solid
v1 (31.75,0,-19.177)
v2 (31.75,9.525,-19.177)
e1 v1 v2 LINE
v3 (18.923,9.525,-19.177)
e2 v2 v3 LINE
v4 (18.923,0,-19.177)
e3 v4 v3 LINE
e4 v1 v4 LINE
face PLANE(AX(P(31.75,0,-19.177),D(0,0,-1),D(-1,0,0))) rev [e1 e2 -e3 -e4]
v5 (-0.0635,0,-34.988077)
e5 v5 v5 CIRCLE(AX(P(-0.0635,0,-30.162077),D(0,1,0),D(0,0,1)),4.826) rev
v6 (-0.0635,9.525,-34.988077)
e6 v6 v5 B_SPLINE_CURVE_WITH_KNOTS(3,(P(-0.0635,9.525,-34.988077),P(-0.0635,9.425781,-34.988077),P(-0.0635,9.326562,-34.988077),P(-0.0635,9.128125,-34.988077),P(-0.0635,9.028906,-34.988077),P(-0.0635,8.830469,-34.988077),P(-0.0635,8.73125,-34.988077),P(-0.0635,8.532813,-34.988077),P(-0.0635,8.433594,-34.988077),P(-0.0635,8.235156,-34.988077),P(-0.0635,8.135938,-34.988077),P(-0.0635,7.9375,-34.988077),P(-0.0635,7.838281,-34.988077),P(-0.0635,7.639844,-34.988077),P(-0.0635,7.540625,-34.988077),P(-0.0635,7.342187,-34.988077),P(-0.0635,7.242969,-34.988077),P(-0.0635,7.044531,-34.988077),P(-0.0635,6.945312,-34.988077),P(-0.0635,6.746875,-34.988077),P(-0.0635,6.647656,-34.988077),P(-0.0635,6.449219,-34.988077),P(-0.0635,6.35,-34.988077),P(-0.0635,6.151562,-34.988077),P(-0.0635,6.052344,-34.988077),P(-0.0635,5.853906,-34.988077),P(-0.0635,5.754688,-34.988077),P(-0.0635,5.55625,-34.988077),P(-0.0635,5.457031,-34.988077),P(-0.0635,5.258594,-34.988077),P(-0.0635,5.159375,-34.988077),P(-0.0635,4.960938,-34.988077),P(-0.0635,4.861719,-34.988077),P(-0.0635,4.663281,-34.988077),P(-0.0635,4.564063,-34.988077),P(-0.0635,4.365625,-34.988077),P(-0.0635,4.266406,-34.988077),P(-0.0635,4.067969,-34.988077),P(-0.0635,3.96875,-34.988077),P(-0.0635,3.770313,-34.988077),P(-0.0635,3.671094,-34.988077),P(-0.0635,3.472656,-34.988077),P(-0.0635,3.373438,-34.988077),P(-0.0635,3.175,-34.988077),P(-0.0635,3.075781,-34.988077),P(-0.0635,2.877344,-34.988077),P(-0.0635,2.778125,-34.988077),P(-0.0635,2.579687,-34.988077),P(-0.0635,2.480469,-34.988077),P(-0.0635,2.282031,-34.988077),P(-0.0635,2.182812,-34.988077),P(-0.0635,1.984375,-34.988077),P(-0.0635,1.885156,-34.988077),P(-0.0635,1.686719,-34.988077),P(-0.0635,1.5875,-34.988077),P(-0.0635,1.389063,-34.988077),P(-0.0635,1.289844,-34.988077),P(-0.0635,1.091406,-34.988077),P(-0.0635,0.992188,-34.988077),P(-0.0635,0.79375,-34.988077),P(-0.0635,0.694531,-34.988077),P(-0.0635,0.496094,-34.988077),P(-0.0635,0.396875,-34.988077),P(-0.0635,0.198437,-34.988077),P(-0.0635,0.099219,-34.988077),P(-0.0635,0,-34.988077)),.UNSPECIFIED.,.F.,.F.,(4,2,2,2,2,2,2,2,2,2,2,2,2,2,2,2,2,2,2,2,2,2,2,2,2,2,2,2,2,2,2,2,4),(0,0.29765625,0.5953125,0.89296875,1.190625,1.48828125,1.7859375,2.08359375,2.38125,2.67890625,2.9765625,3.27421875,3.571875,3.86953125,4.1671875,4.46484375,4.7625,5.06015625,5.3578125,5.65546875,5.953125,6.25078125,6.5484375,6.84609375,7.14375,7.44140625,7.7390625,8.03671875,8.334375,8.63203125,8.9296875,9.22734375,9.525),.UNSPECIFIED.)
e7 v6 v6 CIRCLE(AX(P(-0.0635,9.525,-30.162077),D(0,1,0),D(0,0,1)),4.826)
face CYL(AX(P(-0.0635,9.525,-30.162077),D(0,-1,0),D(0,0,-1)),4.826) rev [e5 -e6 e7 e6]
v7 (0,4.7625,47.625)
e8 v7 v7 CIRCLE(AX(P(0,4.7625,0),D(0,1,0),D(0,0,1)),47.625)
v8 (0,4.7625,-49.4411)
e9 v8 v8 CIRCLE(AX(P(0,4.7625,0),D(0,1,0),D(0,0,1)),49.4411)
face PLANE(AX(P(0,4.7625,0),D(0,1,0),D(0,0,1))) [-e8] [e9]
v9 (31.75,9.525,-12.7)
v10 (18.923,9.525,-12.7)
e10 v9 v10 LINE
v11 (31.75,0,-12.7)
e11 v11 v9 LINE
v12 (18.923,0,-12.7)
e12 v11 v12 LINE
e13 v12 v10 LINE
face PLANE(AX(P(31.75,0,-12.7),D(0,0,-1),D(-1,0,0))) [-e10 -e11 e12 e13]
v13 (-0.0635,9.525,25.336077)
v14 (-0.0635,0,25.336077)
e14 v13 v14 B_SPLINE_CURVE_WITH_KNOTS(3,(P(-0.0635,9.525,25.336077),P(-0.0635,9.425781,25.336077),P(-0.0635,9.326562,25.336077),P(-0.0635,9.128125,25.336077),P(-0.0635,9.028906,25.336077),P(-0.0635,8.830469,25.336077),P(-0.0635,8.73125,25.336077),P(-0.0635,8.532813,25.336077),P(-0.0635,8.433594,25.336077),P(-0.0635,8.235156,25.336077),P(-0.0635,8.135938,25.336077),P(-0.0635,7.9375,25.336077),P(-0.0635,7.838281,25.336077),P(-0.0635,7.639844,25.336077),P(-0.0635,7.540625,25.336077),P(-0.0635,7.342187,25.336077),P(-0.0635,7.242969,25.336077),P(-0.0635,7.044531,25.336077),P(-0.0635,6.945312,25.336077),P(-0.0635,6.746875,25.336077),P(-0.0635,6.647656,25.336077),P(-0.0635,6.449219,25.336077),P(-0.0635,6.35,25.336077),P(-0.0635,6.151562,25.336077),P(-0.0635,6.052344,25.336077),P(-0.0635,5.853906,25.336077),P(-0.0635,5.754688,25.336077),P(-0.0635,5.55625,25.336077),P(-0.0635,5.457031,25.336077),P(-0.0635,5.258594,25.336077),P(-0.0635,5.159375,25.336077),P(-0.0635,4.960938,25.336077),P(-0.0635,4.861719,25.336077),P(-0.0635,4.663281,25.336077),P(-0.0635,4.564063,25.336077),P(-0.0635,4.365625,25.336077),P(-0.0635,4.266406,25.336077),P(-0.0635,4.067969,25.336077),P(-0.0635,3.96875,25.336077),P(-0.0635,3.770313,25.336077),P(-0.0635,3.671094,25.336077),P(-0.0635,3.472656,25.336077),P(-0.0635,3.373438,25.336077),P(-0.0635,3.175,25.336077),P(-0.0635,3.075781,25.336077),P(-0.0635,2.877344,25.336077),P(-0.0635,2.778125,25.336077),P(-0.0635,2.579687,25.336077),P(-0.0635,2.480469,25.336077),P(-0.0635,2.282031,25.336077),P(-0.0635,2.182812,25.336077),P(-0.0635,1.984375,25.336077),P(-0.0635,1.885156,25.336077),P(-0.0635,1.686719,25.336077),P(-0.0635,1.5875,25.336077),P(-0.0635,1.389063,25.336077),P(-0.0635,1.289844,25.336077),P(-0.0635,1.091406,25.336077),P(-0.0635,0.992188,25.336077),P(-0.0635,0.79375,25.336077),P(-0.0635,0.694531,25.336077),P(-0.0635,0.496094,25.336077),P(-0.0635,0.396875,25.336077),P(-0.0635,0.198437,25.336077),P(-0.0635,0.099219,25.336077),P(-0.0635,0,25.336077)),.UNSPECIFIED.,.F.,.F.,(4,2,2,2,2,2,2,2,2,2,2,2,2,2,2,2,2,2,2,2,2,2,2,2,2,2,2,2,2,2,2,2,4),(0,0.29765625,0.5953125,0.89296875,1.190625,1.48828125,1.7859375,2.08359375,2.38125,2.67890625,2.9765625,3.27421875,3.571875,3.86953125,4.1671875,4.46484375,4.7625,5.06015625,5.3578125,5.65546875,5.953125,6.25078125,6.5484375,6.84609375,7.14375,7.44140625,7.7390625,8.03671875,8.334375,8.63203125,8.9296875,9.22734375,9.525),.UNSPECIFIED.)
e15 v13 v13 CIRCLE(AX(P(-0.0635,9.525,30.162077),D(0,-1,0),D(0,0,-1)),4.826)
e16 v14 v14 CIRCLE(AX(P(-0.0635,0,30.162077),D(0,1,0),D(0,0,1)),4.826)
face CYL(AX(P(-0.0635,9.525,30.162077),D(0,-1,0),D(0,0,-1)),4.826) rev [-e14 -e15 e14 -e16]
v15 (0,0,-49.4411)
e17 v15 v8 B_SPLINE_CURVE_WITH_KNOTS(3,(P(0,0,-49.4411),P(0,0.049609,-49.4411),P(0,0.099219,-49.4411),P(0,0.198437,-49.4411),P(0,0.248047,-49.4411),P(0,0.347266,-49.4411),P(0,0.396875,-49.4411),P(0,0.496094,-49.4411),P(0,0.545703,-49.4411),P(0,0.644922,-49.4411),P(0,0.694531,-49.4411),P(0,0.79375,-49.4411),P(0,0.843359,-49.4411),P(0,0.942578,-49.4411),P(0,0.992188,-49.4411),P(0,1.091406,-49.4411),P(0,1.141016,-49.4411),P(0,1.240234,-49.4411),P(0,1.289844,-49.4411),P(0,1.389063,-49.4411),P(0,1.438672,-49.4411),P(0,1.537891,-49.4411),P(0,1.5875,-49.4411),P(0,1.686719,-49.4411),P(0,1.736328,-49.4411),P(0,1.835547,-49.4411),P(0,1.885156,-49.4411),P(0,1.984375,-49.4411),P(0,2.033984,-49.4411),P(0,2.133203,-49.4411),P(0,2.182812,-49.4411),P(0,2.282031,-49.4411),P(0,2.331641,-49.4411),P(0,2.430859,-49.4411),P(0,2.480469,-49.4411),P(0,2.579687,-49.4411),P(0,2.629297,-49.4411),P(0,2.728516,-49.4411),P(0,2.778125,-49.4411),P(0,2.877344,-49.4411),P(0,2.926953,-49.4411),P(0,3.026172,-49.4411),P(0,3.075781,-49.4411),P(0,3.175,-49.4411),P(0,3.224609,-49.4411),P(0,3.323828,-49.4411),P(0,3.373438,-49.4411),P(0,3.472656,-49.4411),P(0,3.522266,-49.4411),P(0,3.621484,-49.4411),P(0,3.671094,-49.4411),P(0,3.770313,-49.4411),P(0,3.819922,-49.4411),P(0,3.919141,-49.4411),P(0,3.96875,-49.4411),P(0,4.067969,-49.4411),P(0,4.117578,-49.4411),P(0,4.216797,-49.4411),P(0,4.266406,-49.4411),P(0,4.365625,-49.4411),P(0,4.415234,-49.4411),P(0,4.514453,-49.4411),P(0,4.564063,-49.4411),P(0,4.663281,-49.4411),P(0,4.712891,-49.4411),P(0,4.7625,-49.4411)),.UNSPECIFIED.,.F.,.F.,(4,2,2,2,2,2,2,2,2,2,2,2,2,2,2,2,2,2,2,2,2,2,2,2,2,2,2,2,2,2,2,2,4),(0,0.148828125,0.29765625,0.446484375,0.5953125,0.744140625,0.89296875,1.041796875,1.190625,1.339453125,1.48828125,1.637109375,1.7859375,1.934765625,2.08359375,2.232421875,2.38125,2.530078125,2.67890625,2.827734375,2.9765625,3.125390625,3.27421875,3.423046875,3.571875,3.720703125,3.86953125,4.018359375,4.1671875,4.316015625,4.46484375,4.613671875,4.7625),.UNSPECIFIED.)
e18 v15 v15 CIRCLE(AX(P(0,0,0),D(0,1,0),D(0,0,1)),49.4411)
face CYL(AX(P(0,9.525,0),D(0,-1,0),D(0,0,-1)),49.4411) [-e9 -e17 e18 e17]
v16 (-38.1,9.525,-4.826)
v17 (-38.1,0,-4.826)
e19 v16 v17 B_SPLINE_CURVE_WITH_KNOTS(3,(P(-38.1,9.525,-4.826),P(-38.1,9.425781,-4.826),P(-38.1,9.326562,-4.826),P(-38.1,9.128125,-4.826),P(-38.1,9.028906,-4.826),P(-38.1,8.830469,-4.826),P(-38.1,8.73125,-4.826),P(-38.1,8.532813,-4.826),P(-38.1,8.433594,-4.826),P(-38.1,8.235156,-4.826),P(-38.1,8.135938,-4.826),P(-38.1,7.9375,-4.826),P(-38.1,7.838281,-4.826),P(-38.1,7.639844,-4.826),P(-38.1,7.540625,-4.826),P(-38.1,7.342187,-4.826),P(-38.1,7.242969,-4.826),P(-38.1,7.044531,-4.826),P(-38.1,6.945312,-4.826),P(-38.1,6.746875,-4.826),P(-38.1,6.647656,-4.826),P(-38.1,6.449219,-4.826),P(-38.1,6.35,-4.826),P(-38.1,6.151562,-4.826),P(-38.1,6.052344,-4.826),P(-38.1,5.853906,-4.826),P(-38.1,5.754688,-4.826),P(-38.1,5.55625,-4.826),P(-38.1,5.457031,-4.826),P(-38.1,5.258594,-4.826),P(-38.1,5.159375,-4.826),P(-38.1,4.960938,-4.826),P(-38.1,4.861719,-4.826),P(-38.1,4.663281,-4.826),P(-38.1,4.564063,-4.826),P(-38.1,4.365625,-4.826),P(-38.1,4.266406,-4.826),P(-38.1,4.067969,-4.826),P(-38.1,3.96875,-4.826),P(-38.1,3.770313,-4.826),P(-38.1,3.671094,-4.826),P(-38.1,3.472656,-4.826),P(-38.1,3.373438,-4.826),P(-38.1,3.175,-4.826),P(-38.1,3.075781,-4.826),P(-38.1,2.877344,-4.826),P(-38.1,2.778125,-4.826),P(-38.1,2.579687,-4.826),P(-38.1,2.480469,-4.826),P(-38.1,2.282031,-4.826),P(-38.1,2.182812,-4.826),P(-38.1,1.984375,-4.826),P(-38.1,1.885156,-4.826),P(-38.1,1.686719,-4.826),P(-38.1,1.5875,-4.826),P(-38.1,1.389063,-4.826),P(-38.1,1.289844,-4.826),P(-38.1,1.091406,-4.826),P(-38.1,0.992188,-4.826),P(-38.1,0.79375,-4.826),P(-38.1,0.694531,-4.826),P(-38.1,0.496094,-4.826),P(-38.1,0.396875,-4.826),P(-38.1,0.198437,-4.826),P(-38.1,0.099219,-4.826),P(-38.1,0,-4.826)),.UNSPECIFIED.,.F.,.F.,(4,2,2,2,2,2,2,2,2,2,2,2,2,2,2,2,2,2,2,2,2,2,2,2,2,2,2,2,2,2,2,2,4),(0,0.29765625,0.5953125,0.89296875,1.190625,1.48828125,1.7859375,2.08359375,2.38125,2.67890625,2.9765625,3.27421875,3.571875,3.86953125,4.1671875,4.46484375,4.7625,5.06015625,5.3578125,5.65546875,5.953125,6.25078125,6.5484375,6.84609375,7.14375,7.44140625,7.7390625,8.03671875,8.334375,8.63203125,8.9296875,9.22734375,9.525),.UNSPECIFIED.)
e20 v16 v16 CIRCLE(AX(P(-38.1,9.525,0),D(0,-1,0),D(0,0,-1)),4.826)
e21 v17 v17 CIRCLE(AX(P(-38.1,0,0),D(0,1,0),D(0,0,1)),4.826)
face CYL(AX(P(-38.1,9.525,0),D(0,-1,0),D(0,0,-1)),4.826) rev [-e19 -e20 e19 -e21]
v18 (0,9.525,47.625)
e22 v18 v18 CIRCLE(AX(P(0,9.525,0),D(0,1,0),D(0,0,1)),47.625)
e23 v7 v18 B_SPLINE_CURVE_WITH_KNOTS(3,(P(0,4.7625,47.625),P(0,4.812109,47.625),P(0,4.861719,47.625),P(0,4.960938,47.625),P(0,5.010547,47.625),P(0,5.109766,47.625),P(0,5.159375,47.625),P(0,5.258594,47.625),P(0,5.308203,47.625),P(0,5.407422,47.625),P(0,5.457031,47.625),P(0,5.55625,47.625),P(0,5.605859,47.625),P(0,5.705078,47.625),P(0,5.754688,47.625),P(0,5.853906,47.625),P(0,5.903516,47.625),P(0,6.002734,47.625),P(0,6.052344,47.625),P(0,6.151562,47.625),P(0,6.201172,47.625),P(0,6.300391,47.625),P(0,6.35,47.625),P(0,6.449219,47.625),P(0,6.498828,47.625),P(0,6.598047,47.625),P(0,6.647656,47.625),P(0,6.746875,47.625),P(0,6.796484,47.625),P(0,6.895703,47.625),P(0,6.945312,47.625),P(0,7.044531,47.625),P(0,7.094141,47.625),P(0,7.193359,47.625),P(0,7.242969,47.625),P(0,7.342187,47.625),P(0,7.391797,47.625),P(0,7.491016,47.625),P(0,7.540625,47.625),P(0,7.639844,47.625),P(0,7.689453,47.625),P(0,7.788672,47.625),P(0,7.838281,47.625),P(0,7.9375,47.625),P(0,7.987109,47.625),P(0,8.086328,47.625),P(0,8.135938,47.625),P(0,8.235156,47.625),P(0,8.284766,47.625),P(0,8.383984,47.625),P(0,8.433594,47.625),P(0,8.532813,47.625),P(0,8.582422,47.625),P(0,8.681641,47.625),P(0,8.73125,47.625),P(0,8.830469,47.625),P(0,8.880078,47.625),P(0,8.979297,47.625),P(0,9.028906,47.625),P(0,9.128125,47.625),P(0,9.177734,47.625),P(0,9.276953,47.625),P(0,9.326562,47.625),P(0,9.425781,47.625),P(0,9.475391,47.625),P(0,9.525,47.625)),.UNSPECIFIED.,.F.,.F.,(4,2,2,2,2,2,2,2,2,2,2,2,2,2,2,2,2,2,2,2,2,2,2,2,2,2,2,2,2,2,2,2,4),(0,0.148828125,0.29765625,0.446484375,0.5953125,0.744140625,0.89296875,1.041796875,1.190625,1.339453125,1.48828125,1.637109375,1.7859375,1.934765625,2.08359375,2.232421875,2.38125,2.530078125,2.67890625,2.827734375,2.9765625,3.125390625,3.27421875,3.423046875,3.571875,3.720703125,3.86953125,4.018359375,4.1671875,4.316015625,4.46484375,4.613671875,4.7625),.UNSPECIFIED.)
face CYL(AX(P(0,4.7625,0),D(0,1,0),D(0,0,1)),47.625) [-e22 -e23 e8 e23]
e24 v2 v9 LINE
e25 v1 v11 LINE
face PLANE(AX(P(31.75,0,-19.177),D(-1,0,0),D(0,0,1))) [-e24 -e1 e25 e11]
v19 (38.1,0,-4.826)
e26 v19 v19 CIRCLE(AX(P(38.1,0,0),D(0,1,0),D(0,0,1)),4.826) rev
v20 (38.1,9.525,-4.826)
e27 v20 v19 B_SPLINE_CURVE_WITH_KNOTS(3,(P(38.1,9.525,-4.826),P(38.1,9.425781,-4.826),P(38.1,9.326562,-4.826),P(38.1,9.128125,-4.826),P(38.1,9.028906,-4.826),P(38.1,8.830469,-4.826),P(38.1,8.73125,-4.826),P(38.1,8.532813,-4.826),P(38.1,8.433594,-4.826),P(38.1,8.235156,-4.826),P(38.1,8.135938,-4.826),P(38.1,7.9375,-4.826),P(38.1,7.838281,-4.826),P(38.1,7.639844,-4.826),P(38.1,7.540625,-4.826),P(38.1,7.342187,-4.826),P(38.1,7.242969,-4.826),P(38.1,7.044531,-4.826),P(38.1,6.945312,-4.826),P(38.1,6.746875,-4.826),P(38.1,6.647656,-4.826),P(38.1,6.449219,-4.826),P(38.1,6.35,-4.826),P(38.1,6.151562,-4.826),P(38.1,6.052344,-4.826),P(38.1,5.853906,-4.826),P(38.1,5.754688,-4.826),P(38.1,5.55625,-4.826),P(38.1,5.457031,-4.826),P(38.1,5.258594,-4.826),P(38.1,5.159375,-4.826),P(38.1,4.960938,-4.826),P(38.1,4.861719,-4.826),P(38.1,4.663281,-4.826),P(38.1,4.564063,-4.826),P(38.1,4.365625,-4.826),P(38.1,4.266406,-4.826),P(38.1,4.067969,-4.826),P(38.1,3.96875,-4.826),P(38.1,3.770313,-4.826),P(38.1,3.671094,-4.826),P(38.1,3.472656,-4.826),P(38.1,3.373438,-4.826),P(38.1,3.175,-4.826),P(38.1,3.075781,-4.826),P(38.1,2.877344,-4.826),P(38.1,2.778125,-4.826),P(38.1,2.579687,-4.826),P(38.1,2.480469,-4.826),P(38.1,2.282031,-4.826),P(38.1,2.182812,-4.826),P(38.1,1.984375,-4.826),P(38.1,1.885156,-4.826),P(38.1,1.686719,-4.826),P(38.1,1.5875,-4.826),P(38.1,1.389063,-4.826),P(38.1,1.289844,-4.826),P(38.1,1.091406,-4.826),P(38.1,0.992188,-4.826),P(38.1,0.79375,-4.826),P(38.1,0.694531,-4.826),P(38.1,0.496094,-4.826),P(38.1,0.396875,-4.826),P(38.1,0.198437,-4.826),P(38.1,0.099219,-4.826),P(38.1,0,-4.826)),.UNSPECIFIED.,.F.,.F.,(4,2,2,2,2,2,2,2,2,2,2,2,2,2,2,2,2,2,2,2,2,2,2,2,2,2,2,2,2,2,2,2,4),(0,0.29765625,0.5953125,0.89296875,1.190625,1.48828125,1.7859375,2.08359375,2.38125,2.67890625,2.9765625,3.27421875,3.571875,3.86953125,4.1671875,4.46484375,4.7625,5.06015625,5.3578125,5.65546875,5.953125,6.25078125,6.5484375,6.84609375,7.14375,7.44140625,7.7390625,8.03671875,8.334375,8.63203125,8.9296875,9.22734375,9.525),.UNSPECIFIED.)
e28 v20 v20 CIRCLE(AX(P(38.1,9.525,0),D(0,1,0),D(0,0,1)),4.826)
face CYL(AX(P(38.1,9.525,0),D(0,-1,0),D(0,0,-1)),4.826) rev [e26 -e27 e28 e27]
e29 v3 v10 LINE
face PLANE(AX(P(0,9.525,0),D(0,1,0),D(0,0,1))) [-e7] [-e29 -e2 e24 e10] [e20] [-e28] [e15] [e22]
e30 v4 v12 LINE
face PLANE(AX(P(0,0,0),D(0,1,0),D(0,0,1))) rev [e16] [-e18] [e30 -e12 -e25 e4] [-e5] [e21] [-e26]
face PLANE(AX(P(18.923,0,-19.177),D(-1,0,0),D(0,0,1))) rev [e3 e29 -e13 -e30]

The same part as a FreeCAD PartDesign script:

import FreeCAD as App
import Part
import Sketcher
Q = App.Units.Quantity

doc = App.newDocument("Part")
params = doc.addObject("Spreadsheet::Sheet", "Params")
for row, (alias, value) in enumerate([
    ("sketch1_diameter", "3.893 in"),
    ("pad1_length", "0.375 in"),
    ("sketch2_diameter", "3.98 in"),
    ("sketch2_diameter2", "3.75 in"),
    ("pocket1_length", "0.1875 in"),
    ("sketch3_diameter", "0.38 in"),
    ("sketch4_width", "0.505 in"),
    ("sketch4_height", "0.255 in"),
], start=1):
    params.set(f"A{row}", alias)
    params.set(f"B{row}", "=" + value)
    params.setAlias(f"B{row}", alias)

body = doc.addObject("PartDesign::Body", "Body")

sketch1 = body.newObject("Sketcher::SketchObject", "Sketch")
sketch1.AttachmentSupport = (doc.getObject("XZ_Plane"), [""])
sketch1.MapMode = "FlatFace"
sketch1.addGeometry(Part.Circle(App.Vector(0, 0, 0), App.Vector(0, 0, 1), 49), False)
sketch1.addConstraint([
    Sketcher.Constraint("Coincident", 0, 3, -1, 1),
    Sketcher.Constraint("Diameter", 0, Q("3.893 in")),
])
sketch1.setExpression("Constraints[1]", "Params.sketch1_diameter")
pad1 = body.newObject("PartDesign::Pad", "Pad")
pad1.Profile = sketch1
pad1.setExpression("Length", "Params.pad1_length")
pad1.Reversed = True

sketch2 = body.newObject("Sketcher::SketchObject", "Sketch001")
sketch2.AttachmentSupport = (doc.getObject("XZ_Plane"), [""])
sketch2.MapMode = "FlatFace"
sketch2.AttachmentOffset = App.Placement(App.Vector(0, 0, -0.375 * 25.4), App.Rotation())
sketch2.addGeometry([
    Part.Circle(App.Vector(0, 0, 0), App.Vector(0, 0, 1), 51),
    Part.Circle(App.Vector(0, 0, 0), App.Vector(0, 0, 1), 48),
], False)
sketch2.addConstraint([
    Sketcher.Constraint("Coincident", 0, 3, -1, 1),
    Sketcher.Constraint("Coincident", 1, 3, -1, 1),
    Sketcher.Constraint("Diameter", 0, Q("3.98 in")),
    Sketcher.Constraint("Diameter", 1, Q("3.75 in")),
])
sketch2.setExpression("Constraints[2]", "Params.sketch2_diameter")
sketch2.setExpression("Constraints[3]", "Params.sketch2_diameter2")
pocket1 = body.newObject("PartDesign::Pocket", "Pocket")
pocket1.Profile = sketch2
pocket1.setExpression("Length", "Params.pocket1_length")
pocket1.Reversed = True

sketch3 = body.newObject("Sketcher::SketchObject", "Sketch002")
sketch3.AttachmentSupport = (doc.getObject("XZ_Plane"), [""])
sketch3.MapMode = "FlatFace"
sketch3.addGeometry([
    Part.Circle(App.Vector(-0.1, 30.2, 0), App.Vector(0, 0, 1), 4.8),
    Part.Circle(App.Vector(-0.1, -30.2, 0), App.Vector(0, 0, 1), 4.8),
    Part.Circle(App.Vector(-38.1, 0, 0), App.Vector(0, 0, 1), 4.8),
    Part.Circle(App.Vector(38.1, 0, 0), App.Vector(0, 0, 1), 4.8),
], False)
sketch3.addConstraint([
    Sketcher.Constraint("Equal", 0, 1),
    Sketcher.Constraint("Equal", 1, 2),
    Sketcher.Constraint("Equal", 2, 3),
    Sketcher.Constraint("Symmetric", 2, 3, 3, 3, -1, 1),
    Sketcher.Constraint("Symmetric", 0, 3, 1, 3, -1),
    Sketcher.Constraint("PointOnObject", 2, 3, -1),
    Sketcher.Constraint("Diameter", 0, Q("0.38 in")),
    Sketcher.Constraint("DistanceX", 2, 3, 3, 3, Q("3 in")),
    Sketcher.Constraint("DistanceX", 0, 3, -1, 1, Q("0.0025 in")),
    Sketcher.Constraint("DistanceY", -1, 1, 0, 3, 30.162077),
])
sketch3.setExpression("Constraints[6]", "Params.sketch3_diameter")
pocket2 = body.newObject("PartDesign::Pocket", "Pocket001")
pocket2.Profile = sketch3
pocket2.Type = "ThroughAll"
pocket2.Midplane = True

sketch4 = body.newObject("Sketcher::SketchObject", "Sketch003")
sketch4.AttachmentSupport = (doc.getObject("XZ_Plane"), [""])
sketch4.MapMode = "FlatFace"
sketch4.AttachmentOffset = App.Placement(App.Vector(0, 0, -0.375 * 25.4), App.Rotation())
sketch4.addGeometry([
    Part.LineSegment(App.Vector(19, -19, 0), App.Vector(19, -13, 0)),
    Part.LineSegment(App.Vector(19, -13, 0), App.Vector(32, -13, 0)),
    Part.LineSegment(App.Vector(32, -13, 0), App.Vector(32, -19, 0)),
    Part.LineSegment(App.Vector(32, -19, 0), App.Vector(19, -19, 0)),
], False)
sketch4.addConstraint([
    Sketcher.Constraint("Coincident", 0, 2, 1, 1),
    Sketcher.Constraint("Coincident", 1, 2, 2, 1),
    Sketcher.Constraint("Coincident", 2, 2, 3, 1),
    Sketcher.Constraint("Coincident", 3, 2, 0, 1),
    Sketcher.Constraint("Vertical", 0),
    Sketcher.Constraint("Horizontal", 1),
    Sketcher.Constraint("Vertical", 2),
    Sketcher.Constraint("Horizontal", 3),
    Sketcher.Constraint("DistanceY", 0, 2, -1, 1, Q("0.5 in")),
    Sketcher.Constraint("DistanceX", 1, 1, 1, 2, Q("0.505 in")),
    Sketcher.Constraint("DistanceY", 0, 1, 0, 2, Q("0.255 in")),
    Sketcher.Constraint("DistanceX", -1, 1, 1, 2, Q("1.25 in")),
])
sketch4.setExpression("Constraints[9]", "Params.sketch4_width")
sketch4.setExpression("Constraints[10]", "Params.sketch4_height")
pocket3 = body.newObject("PartDesign::Pocket", "Pocket002")
pocket3.Profile = sketch4
pocket3.Type = "ThroughAll"
pocket3.Midplane = True

doc.recompute()
